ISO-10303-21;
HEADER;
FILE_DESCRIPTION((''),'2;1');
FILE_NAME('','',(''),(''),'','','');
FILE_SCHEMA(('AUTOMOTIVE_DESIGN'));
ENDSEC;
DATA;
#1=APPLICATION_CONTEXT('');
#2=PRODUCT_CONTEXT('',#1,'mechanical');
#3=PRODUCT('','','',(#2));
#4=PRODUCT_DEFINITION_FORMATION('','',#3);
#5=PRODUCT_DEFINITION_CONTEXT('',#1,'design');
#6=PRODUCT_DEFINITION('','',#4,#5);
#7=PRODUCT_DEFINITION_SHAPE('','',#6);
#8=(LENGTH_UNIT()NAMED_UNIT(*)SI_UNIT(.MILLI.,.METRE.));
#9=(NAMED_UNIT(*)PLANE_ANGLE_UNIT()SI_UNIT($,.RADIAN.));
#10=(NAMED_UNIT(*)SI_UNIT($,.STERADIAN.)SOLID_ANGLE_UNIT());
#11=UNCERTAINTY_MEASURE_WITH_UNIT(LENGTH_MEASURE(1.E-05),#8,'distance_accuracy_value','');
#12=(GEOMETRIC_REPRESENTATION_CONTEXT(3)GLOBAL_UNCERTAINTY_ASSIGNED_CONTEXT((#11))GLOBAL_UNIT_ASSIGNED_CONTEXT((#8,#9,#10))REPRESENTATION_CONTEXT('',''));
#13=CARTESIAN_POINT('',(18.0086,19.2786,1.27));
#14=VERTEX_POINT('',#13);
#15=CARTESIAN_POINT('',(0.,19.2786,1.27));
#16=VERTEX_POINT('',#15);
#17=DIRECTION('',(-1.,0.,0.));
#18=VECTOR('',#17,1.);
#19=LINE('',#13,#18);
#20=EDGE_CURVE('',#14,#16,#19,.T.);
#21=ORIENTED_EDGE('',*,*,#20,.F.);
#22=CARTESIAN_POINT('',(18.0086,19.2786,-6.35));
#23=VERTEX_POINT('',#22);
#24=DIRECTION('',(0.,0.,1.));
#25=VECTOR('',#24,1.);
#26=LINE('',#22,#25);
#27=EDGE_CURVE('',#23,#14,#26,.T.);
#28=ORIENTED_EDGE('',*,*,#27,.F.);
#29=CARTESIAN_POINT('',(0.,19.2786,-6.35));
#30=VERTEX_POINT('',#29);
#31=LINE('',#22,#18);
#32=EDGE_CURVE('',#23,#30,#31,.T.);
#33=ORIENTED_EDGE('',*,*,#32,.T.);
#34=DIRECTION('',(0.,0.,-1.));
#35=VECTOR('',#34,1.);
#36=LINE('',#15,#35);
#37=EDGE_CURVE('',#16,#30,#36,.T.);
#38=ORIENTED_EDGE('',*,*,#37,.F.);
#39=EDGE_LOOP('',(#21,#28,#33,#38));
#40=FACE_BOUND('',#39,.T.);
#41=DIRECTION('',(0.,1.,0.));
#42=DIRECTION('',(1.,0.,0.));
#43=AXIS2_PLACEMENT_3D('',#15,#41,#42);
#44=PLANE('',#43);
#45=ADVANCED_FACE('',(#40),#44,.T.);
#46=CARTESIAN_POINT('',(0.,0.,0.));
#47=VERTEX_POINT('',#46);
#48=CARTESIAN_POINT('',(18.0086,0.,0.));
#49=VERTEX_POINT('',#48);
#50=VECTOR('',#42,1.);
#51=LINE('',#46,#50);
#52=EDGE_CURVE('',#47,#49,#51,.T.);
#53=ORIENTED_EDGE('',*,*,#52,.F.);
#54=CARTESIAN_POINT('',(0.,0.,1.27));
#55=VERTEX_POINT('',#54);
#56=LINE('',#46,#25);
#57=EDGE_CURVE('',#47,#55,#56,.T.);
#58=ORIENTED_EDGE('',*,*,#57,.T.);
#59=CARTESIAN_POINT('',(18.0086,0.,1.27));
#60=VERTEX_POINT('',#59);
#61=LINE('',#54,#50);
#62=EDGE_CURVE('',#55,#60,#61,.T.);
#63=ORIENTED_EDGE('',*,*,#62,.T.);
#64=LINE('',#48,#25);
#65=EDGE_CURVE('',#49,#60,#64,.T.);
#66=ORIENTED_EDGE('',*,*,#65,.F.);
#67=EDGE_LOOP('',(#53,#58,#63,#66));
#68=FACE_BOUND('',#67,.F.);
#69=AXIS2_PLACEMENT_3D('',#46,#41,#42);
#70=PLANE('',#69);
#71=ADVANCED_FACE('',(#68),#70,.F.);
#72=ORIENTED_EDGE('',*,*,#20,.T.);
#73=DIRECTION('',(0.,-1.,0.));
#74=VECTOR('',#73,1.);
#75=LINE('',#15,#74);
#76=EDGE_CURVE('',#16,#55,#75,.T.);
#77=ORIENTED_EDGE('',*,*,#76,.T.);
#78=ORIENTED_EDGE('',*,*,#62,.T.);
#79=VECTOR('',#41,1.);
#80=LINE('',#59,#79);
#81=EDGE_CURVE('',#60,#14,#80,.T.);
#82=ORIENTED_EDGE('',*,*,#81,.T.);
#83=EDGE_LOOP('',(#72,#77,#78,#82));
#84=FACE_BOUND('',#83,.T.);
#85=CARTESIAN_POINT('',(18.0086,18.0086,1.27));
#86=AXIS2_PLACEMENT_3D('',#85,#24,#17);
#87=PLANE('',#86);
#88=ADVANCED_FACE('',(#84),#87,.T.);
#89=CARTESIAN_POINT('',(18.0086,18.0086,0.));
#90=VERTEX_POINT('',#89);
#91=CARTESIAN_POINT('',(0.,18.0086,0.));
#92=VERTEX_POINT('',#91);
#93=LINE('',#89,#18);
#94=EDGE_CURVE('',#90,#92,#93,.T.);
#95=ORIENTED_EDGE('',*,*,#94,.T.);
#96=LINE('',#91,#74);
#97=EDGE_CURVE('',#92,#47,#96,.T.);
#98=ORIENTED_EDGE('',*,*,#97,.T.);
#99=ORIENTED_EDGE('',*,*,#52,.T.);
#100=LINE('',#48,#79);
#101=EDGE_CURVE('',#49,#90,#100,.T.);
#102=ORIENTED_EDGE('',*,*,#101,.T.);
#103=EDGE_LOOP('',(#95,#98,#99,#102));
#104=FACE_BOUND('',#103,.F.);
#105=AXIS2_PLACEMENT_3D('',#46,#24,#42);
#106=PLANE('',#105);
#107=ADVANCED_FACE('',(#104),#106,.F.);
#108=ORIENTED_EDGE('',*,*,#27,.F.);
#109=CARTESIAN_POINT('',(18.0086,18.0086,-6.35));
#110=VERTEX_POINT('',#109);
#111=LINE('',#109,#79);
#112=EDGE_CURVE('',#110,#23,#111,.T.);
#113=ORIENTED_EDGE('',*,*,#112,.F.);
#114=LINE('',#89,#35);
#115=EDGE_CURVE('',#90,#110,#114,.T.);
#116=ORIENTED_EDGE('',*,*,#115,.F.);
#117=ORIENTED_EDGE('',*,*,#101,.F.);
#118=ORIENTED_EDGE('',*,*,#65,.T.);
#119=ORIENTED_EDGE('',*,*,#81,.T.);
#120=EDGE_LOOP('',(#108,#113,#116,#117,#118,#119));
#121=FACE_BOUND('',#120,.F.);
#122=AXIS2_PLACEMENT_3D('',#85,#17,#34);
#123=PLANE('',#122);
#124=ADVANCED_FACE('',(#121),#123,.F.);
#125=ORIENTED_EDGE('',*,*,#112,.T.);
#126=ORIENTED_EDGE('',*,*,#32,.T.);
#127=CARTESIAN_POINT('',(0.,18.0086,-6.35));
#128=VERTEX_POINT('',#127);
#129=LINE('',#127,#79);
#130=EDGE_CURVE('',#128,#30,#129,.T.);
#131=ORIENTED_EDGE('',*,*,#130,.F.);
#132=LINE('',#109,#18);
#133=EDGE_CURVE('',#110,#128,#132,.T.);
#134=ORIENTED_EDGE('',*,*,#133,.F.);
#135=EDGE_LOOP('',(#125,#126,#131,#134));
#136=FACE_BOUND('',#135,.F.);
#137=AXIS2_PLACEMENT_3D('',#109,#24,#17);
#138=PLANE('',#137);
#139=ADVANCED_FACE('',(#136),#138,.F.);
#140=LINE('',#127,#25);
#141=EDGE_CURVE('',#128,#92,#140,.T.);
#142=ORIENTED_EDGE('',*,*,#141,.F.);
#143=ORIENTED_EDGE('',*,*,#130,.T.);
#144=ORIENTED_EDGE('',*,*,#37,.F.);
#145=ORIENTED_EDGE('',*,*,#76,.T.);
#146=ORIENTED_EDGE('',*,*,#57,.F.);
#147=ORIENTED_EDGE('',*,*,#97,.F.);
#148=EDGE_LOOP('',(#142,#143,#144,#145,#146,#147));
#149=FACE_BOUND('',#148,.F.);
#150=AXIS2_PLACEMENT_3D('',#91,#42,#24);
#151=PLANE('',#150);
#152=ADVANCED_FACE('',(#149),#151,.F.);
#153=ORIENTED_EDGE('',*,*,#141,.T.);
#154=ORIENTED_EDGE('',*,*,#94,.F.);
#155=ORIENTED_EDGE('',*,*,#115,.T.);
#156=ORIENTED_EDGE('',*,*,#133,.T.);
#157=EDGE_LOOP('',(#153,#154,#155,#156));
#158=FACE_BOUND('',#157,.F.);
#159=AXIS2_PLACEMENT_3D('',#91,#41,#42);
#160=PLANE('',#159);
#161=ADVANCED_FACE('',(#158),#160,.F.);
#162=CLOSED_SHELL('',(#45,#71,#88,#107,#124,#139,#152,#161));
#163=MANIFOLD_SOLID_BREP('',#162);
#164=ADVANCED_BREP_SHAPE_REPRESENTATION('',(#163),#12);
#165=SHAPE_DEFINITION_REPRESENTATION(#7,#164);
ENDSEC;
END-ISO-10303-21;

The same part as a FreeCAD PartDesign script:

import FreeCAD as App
import Part
import Sketcher
from FreeCAD import Vector
Q = App.Units.Quantity

doc = App.newDocument("Part")
params = doc.addObject("Spreadsheet::Sheet", "Params")
for row, (alias, value) in enumerate([
    ("sketch1_width", "0.709 in"),
    ("pad1_length", "0.05 in"),
    ("sketch2_height", "0.25 in"),
    ("sketch2_width", "0.709 in"),
    ("pad2_length", "0.05 in"),
    ("sketch3_height", "0.05 in"),
    ("sketch3_width", "0.709 in"),
    ("pad3_length", "0.05 in"),
], start=1):
    params.set(f"A{row}", alias)
    params.set(f"B{row}", "=" + value)
    params.setAlias(f"B{row}", alias)

body = doc.addObject("PartDesign::Body", "Body")
body.AllowCompound = True

# Sketch on XY plane
sketch1 = doc.addObject("Sketcher::SketchObject", "Sketch")
body.addObject(sketch1)
sketch1.AttachmentSupport = (doc.XY_Plane, [""])
sketch1.MapMode = "FlatFace"
sketch1.addGeometry([
    Part.LineSegment(Vector(0, 18, 0), Vector(0, 0, 0)),
    Part.LineSegment(Vector(0, 0, 0), Vector(18, 0, 0)),
    Part.LineSegment(Vector(18, 0, 0), Vector(18, 18, 0)),
    Part.LineSegment(Vector(18, 18, 0), Vector(0, 18, 0)),
], False)
sketch1.addConstraint([
    Sketcher.Constraint("Coincident", 0, 2, 1, 1),
    Sketcher.Constraint("Coincident", 1, 2, 2, 1),
    Sketcher.Constraint("Coincident", 2, 2, 3, 1),
    Sketcher.Constraint("Coincident", 3, 2, 0, 1),
    Sketcher.Constraint("Vertical", 0),
    Sketcher.Constraint("Horizontal", 1),
    Sketcher.Constraint("Vertical", 2),
    Sketcher.Constraint("Horizontal", 3),
    Sketcher.Constraint("Coincident", 0, 2, -1, 1),
    Sketcher.Constraint("Equal", 3, 0),
    Sketcher.Constraint("DistanceX", 1, 1, 1, 2, Q("0.709 in")),
])
sketch1.setExpression("Constraints[10]", "Params.sketch1_width")
pad1 = doc.addObject("PartDesign::Pad", "Pad")
body.addObject(pad1)
pad1.Profile = sketch1
pad1.setExpression("Length", "Params.pad1_length")

# Sketch on XZ plane
sketch2 = doc.addObject("Sketcher::SketchObject", "Sketch001")
body.addObject(sketch2)
sketch2.AttachmentSupport = (doc.XZ_Plane, [""])
sketch2.MapMode = "FlatFace"
sketch2.AttachmentOffset = App.Placement(Vector(0, 0, -0.709 * 25.4), App.Rotation())
sketch2.addGeometry([
    Part.LineSegment(Vector(0, -6, 0), Vector(0, 0, 0)),
    Part.LineSegment(Vector(0, 0, 0), Vector(18, 0, 0)),
    Part.LineSegment(Vector(18, 0, 0), Vector(18, -6, 0)),
    Part.LineSegment(Vector(18, -6, 0), Vector(0, -6, 0)),
], False)
sketch2.addConstraint([
    Sketcher.Constraint("Coincident", 0, 2, 1, 1),
    Sketcher.Constraint("Coincident", 1, 2, 2, 1),
    Sketcher.Constraint("Coincident", 2, 2, 3, 1),
    Sketcher.Constraint("Coincident", 3, 2, 0, 1),
    Sketcher.Constraint("Vertical", 0),
    Sketcher.Constraint("Horizontal", 1),
    Sketcher.Constraint("Vertical", 2),
    Sketcher.Constraint("Horizontal", 3),
    Sketcher.Constraint("Coincident", 0, 2, -1, 1),
    Sketcher.Constraint("DistanceY", 0, 1, 0, 2, Q("0.25 in")),
    Sketcher.Constraint("DistanceX", 1, 1, 1, 2, Q("0.709 in")),
])
sketch2.setExpression("Constraints[9]", "Params.sketch2_height")
sketch2.setExpression("Constraints[10]", "Params.sketch2_width")
pad2 = doc.addObject("PartDesign::Pad", "Pad001")
body.addObject(pad2)
pad2.Profile = sketch2
pad2.setExpression("Length", "Params.pad2_length")
pad2.Reversed = True

# Sketch on XZ plane
sketch3 = doc.addObject("Sketcher::SketchObject", "Sketch002")
body.addObject(sketch3)
sketch3.AttachmentSupport = (doc.XZ_Plane, [""])
sketch3.MapMode = "FlatFace"
sketch3.AttachmentOffset = App.Placement(Vector(0, 0, -0.709 * 25.4), App.Rotation())
sketch3.addGeometry([
    Part.LineSegment(Vector(0, 1.3, 0), Vector(18, 1.3, 0)),
    Part.LineSegment(Vector(18, 1.3, 0), Vector(18, 0, 0)),
    Part.LineSegment(Vector(18, 0, 0), Vector(0, 0, 0)),
    Part.LineSegment(Vector(0, 0, 0), Vector(0, 1.3, 0)),
], False)
sketch3.addConstraint([
    Sketcher.Constraint("Coincident", 0, 2, 1, 1),
    Sketcher.Constraint("Coincident", 1, 2, 2, 1),
    Sketcher.Constraint("Coincident", 2, 2, 3, 1),
    Sketcher.Constraint("Coincident", 3, 2, 0, 1),
    Sketcher.Constraint("Horizontal", 0),
    Sketcher.Constraint("Vertical", 1),
    Sketcher.Constraint("Horizontal", 2),
    Sketcher.Constraint("Vertical", 3),
    Sketcher.Constraint("Coincident", 2, 2, -1, 1),
    Sketcher.Constraint("DistanceY", 1, 2, 1, 1, Q("0.05 in")),
    Sketcher.Constraint("DistanceX", 0, 1, 0, 2, Q("0.709 in")),
])
sketch3.setExpression("Constraints[9]", "Params.sketch3_height")
sketch3.setExpression("Constraints[10]", "Params.sketch3_width")
pad3 = doc.addObject("PartDesign::Pad", "Pad002")
body.addObject(pad3)
pad3.Profile = sketch3
pad3.setExpression("Length", "Params.pad3_length")
pad3.Reversed = True

doc.recompute()
